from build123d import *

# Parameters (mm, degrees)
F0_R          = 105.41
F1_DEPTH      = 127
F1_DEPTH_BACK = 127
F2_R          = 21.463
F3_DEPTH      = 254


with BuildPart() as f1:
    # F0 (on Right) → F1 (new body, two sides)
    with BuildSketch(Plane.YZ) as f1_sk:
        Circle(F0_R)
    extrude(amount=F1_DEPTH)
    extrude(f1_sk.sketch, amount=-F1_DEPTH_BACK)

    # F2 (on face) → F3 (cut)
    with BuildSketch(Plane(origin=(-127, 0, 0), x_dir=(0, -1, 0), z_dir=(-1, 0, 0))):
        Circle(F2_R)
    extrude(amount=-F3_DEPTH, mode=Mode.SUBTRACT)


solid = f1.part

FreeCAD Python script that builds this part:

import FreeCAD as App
import Part
import Sketcher
Q = App.Units.Quantity

doc = App.newDocument("Part")
params = doc.addObject("Spreadsheet::Sheet", "Params")
for row, (alias, value) in enumerate([
    ("sketch1_diameter", "8.3 in"),
    ("pad1_length", "5 in"),
    ("pad1_length2", "5 in"),
    ("sketch2_diameter", "1.69 in"),
    ("pocket1_length", "10 in"),
], start=1):
    params.set(f"A{row}", alias)
    params.set(f"B{row}", "=" + value)
    params.setAlias(f"B{row}", alias)

body = doc.addObject("PartDesign::Body", "Body")

sketch1 = body.newObject("Sketcher::SketchObject", "Sketch")
sketch1.AttachmentSupport = (doc.getObject("YZ_Plane"), [""])
sketch1.MapMode = "FlatFace"
sketch1.addGeometry(Part.Circle(App.Vector(0, 0, 0), App.Vector(0, 0, 1), 105), False)
sketch1.addConstraint([
    Sketcher.Constraint("Coincident", 0, 3, -1, 1),
    Sketcher.Constraint("Diameter", 0, Q("8.3 in")),
])
sketch1.setExpression("Constraints[1]", "Params.sketch1_diameter")
pad1 = body.newObject("PartDesign::Pad", "Pad")
pad1.Profile = sketch1
pad1.Type = "TwoLengths"
pad1.setExpression("Length", "Params.pad1_length")
pad1.setExpression("Length2", "Params.pad1_length2")

sketch2 = body.newObject("Sketcher::SketchObject", "Sketch001")
sketch2.AttachmentSupport = (doc.getObject("YZ_Plane"), [""])
sketch2.MapMode = "FlatFace"
sketch2.AttachmentOffset = App.Placement(App.Vector(0, 0, -5 * 25.4), App.Rotation())
sketch2.addGeometry(Part.Circle(App.Vector(0, 0, 0), App.Vector(0, 0, 1), 21), False)
sketch2.addConstraint([
    Sketcher.Constraint("Coincident", 0, 3, -1, 1),
    Sketcher.Constraint("Diameter", 0, Q("1.69 in")),
])
sketch2.setExpression("Constraints[1]", "Params.sketch2_diameter")
pocket1 = body.newObject("PartDesign::Pocket", "Pocket")
pocket1.Profile = sketch2
pocket1.setExpression("Length", "Params.pocket1_length")
pocket1.Reversed = True

doc.recompute()
